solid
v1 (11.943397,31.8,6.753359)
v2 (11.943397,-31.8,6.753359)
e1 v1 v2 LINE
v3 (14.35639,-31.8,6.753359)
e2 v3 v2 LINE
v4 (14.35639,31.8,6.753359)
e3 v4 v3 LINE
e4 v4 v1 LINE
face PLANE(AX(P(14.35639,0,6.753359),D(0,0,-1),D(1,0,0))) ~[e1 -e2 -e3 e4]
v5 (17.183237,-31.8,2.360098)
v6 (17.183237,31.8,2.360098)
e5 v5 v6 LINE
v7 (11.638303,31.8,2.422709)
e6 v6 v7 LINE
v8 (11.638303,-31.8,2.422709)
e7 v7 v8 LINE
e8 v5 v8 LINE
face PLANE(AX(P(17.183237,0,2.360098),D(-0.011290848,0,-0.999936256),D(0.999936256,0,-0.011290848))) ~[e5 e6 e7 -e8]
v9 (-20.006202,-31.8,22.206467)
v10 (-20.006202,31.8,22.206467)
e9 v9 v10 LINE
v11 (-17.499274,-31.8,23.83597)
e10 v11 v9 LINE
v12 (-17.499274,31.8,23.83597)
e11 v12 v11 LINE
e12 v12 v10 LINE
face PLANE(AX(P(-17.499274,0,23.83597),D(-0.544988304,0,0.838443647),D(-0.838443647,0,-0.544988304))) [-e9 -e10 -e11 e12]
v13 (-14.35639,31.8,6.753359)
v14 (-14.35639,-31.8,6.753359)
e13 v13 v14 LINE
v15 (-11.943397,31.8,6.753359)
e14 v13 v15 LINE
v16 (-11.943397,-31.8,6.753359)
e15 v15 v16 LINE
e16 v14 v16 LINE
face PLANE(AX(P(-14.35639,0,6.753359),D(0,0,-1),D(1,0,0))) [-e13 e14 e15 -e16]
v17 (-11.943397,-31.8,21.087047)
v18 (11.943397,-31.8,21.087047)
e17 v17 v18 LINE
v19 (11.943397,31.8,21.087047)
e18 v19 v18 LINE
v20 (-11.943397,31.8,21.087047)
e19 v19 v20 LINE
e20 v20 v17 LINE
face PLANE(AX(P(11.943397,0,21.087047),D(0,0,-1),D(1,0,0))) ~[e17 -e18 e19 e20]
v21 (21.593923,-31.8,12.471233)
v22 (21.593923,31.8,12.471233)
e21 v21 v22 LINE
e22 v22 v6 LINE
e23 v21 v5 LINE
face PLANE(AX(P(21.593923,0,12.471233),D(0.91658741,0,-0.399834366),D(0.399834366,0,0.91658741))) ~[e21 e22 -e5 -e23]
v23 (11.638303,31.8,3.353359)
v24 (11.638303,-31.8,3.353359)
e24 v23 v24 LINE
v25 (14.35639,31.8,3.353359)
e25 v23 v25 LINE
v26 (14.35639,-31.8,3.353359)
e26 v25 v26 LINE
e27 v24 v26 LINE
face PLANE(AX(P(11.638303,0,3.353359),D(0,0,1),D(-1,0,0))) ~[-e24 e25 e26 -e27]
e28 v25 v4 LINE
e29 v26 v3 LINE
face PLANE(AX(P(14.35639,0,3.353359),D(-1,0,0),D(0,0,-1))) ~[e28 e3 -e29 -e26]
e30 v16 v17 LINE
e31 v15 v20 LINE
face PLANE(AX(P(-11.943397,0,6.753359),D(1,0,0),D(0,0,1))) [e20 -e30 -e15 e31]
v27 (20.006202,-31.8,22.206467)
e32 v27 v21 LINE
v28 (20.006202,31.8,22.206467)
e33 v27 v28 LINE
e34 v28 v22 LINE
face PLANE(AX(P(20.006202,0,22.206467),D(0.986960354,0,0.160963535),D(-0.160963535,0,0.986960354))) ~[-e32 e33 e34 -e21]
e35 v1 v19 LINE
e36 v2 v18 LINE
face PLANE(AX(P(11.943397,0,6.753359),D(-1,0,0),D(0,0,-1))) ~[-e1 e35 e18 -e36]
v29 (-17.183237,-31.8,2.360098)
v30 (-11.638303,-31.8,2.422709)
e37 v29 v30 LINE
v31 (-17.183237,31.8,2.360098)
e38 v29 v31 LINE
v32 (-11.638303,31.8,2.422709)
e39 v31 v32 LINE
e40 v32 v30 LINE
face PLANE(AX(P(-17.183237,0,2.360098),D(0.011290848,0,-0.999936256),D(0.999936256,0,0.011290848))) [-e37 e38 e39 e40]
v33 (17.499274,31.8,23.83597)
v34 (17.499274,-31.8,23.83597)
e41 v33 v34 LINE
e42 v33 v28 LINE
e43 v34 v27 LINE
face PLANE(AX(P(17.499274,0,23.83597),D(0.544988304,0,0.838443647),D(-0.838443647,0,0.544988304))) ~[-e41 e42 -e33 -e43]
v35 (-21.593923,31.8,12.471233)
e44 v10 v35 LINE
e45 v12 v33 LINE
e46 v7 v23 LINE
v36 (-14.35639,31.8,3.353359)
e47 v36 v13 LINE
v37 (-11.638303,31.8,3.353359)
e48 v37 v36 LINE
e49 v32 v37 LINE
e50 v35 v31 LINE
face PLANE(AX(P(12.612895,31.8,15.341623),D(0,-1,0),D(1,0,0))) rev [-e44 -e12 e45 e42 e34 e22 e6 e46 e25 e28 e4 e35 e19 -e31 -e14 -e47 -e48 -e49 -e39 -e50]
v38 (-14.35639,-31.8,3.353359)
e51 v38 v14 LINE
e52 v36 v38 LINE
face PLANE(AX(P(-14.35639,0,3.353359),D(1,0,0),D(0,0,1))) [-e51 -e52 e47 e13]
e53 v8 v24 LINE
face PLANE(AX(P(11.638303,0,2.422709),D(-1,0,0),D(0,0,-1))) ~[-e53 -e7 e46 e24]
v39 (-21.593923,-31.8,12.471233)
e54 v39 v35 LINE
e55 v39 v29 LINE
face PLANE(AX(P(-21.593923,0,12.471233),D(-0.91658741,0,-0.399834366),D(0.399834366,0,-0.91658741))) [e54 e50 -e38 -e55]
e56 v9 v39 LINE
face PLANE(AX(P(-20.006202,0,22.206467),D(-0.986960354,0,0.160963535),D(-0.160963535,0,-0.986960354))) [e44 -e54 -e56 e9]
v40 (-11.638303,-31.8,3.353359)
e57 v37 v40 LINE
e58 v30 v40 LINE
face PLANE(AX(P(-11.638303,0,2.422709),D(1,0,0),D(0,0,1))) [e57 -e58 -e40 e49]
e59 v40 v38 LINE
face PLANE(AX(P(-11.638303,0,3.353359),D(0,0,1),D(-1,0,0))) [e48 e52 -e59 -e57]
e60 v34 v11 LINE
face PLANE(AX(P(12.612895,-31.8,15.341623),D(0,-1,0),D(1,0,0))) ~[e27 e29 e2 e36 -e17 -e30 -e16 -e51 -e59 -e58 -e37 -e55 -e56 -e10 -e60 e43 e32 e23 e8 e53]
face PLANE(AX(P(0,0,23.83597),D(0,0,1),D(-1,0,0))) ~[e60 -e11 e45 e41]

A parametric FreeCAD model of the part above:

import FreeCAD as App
import Part
import Sketcher
Q = App.Units.Quantity


def add_polygon(sketch, points):
    """Adds a closed chain of lines whose ends are joined by coincident constraints."""
    first, n = sketch.GeometryCount, len(points)
    for a, b in zip(points, points[1:] + points[:1]):
        sketch.addGeometry(Part.LineSegment(App.Vector(*a, 0), App.Vector(*b, 0)), False)
    for i in range(n):
        sketch.addConstraint(Sketcher.Constraint("Coincident", first + i, 2, first + (i + 1) % n, 1))

doc = App.newDocument("Part")
params = doc.addObject("Spreadsheet::Sheet", "Params")
for row, (alias, value) in enumerate([
    ("sketch1_height", "3.4 mm"),
    ("pad1_length", "63.6 mm"),
], start=1):
    params.set(f"A{row}", alias)
    params.set(f"B{row}", "=" + value)
    params.setAlias(f"B{row}", alias)

body = doc.addObject("PartDesign::Body", "Body")

# Sketch on XZ plane
sketch1 = body.newObject("Sketcher::SketchObject", "Sketch")
sketch1.AttachmentSupport = (doc.getObject("XZ_Plane"), [""])
sketch1.MapMode = "FlatFace"
add_polygon(sketch1, [(-17.183237, 2.360098), (-11.638303, 2.422709), (-11.638303, 3.353359), (-14.35639, 3.353359), (-14.35639, 6.753359), (-11.943397, 6.753359), (-11.943397, 21.087047), (0, 21.087047), (0, 23.83597), (-17.499274, 23.83597), (-20.006202, 22.206467), (-21.593923, 12.471233)])  # lines 0-11
sketch1.addConstraint([
    Sketcher.Constraint("Vertical", 1),
    Sketcher.Constraint("Horizontal", 2),
    Sketcher.Constraint("Vertical", 3),
    Sketcher.Constraint("Horizontal", 4),
    Sketcher.Constraint("Vertical", 5),
    Sketcher.Constraint("Horizontal", 6),
    Sketcher.Constraint("Vertical", 7),
    Sketcher.Constraint("Horizontal", 8),
    Sketcher.Constraint("PointOnObject", 6, 2, -2),
    Sketcher.Constraint("DistanceY", 3, 1, 3, 2, Q("3.4 mm")),
    Sketcher.Constraint("DistanceY", 1, 1, 1, 2, Q("0.93065 mm")),
    Sketcher.Constraint("DistanceX", 9, 2, -1, 1, Q("20.006202 mm")),
    Sketcher.Constraint("DistanceX", 2, 2, 2, 1, Q("2.718087 mm")),
    Sketcher.Constraint("DistanceX", 4, 1, 4, 2, Q("2.412993 mm")),
    Sketcher.Constraint("DistanceX", 6, 1, 6, 2, Q("11.943397 mm")),
    Sketcher.Constraint("DistanceX", 8, 2, 8, 1, Q("17.499274 mm")),
    Sketcher.Constraint("DistanceY", 5, 1, 5, 2, Q("14.333688 mm")),
    Sketcher.Constraint("DistanceY", 7, 1, 7, 2, Q("2.748923 mm")),
    Sketcher.Constraint("DistanceY", -1, 1, 0, 2, Q("2.422709 mm")),
    Sketcher.Constraint("DistanceY", 5, 2, 9, 2, Q("1.11942 mm")),
    Sketcher.Constraint("DistanceX", 10, 2, 9, 2, Q("1.587721 mm")),
    Sketcher.Constraint("DistanceY", 11, 2, 2, 2, Q("0.993261 mm")),
    Sketcher.Constraint("DistanceX", 11, 2, 4, 2, Q("5.23984 mm")),
    Sketcher.Constraint("Distance", 10, Q("9.863855 mm")),
])
sketch1.setExpression("Constraints[21]", "Params.sketch1_height")
pad1 = body.newObject("PartDesign::Pad", "Pad")
pad1.Profile = sketch1
pad1.setExpression("Length", "Params.pad1_length")
pad1.Midplane = True
body2 = doc.addObject("PartDesign::Body", "Body001")
doc.recompute()

body2.BaseFeature = body
doc.recompute()

mirroring = doc.addObject("Part::Mirroring", "Mirroring")
mirroring.Source = body
mirroring.Base = App.Vector(0, 0, 0)
mirroring.Normal = App.Vector(1, 0, 0)
body3 = doc.addObject("PartDesign::Body", "Body002")
body3.BaseFeature = mirroring
boolean = body2.newObject("PartDesign::Boolean", "Boolean")
boolean.Type = "Fuse"
boolean.addObjects([body3])
doc.recompute()
mirroring.Visibility = False

doc.recompute()
